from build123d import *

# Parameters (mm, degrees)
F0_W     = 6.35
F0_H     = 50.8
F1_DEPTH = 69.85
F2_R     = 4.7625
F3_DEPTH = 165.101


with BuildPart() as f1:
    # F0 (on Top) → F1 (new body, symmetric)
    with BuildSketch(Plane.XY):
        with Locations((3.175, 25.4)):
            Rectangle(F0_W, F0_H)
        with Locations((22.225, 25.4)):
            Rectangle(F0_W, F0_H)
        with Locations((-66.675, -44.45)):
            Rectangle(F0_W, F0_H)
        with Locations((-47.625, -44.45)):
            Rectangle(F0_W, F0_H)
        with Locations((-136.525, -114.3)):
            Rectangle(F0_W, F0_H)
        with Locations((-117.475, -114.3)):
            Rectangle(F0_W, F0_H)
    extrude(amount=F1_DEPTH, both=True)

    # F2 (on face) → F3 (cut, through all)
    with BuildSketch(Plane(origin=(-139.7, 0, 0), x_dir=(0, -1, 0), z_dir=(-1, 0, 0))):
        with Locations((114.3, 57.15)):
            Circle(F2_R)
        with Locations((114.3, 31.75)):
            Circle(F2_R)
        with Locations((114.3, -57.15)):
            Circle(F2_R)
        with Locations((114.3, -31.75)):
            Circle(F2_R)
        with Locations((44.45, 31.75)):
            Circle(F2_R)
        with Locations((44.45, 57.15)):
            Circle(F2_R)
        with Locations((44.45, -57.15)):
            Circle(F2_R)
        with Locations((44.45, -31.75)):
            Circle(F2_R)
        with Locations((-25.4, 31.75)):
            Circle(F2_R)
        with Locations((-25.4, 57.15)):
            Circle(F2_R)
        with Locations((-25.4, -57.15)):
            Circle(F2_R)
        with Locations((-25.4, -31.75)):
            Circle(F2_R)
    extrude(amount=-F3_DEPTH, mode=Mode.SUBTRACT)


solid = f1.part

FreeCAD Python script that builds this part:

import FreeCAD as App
import Part
import Sketcher

V = App.Vector
Q = App.Units.Quantity

doc = App.newDocument("Part")
params = doc.addObject("Spreadsheet::Sheet", "Params")
for row, (alias, value) in enumerate([
    ("sketch1_height", "2 in"),
    ("sketch1_width", "0.25 in"),
    ("pad1_length", "5.5 in"),
    ("sketch2_diameter", "0.375 in"),
], start=1):
    params.set(f"A{row}", alias)
    params.set(f"B{row}", "=" + value)
    params.setAlias(f"B{row}", alias)

body = doc.addObject("PartDesign::Body", "Body")
body.AllowCompound = True

# Sketch on XY plane
sketch1 = body.newObject("Sketcher::SketchObject", "Sketch")
sketch1.AttachmentSupport = (doc.getObject("XY_Plane"), [""])
sketch1.MapMode = "FlatFace"
sketch1.addGeometry([
    Part.LineSegment(V(0, 51, 0), V(0, 0, 0)),  # 0
    Part.LineSegment(V(0, 0, 0), V(6, 0, 0)),  # 1
    Part.LineSegment(V(6, 0, 0), V(6, 51, 0)),  # 2
    Part.LineSegment(V(6, 51, 0), V(0, 51, 0)),  # 3
    Part.LineSegment(V(19, 51, 0), V(19, 0, 0)),  # 4
    Part.LineSegment(V(19, 0, 0), V(25, 0, 0)),  # 5
    Part.LineSegment(V(25, 0, 0), V(25, 51, 0)),  # 6
    Part.LineSegment(V(25, 51, 0), V(19, 51, 0)),  # 7
    Part.LineSegment(V(-70, -19, 0), V(-70, -70, 0)),  # 8
    Part.LineSegment(V(-70, -70, 0), V(-64, -70, 0)),  # 9
    Part.LineSegment(V(-64, -70, 0), V(-64, -19, 0)),  # 10
    Part.LineSegment(V(-64, -19, 0), V(-70, -19, 0)),  # 11
    Part.LineSegment(V(-51, -19, 0), V(-51, -70, 0)),  # 12
    Part.LineSegment(V(-51, -70, 0), V(-44, -70, 0)),  # 13
    Part.LineSegment(V(-44, -70, 0), V(-44, -19, 0)),  # 14
    Part.LineSegment(V(-44, -19, 0), V(-51, -19, 0)),  # 15
    Part.LineSegment(V(-140, -89, 0), V(-140, -140, 0)),  # 16
    Part.LineSegment(V(-140, -140, 0), V(-133, -140, 0)),  # 17
    Part.LineSegment(V(-133, -140, 0), V(-133, -89, 0)),  # 18
    Part.LineSegment(V(-133, -89, 0), V(-140, -89, 0)),  # 19
    Part.LineSegment(V(-121, -89, 0), V(-121, -140, 0)),  # 20
    Part.LineSegment(V(-121, -140, 0), V(-114, -140, 0)),  # 21
    Part.LineSegment(V(-114, -140, 0), V(-114, -89, 0)),  # 22
    Part.LineSegment(V(-114, -89, 0), V(-121, -89, 0)),  # 23
], False)
sketch1.addConstraint([
    Sketcher.Constraint("Coincident", 0, 2, 1, 1),
    Sketcher.Constraint("Coincident", 1, 2, 2, 1),
    Sketcher.Constraint("Coincident", 2, 2, 3, 1),
    Sketcher.Constraint("Coincident", 3, 2, 0, 1),
    Sketcher.Constraint("Coincident", 4, 2, 5, 1),
    Sketcher.Constraint("Coincident", 5, 2, 6, 1),
    Sketcher.Constraint("Coincident", 6, 2, 7, 1),
    Sketcher.Constraint("Coincident", 7, 2, 4, 1),
    Sketcher.Constraint("Coincident", 8, 2, 9, 1),
    Sketcher.Constraint("Coincident", 9, 2, 10, 1),
    Sketcher.Constraint("Coincident", 10, 2, 11, 1),
    Sketcher.Constraint("Coincident", 11, 2, 8, 1),
    Sketcher.Constraint("Coincident", 12, 2, 13, 1),
    Sketcher.Constraint("Coincident", 13, 2, 14, 1),
    Sketcher.Constraint("Coincident", 14, 2, 15, 1),
    Sketcher.Constraint("Coincident", 15, 2, 12, 1),
    Sketcher.Constraint("Coincident", 16, 2, 17, 1),
    Sketcher.Constraint("Coincident", 17, 2, 18, 1),
    Sketcher.Constraint("Coincident", 18, 2, 19, 1),
    Sketcher.Constraint("Coincident", 19, 2, 16, 1),
    Sketcher.Constraint("Coincident", 20, 2, 21, 1),
    Sketcher.Constraint("Coincident", 21, 2, 22, 1),
    Sketcher.Constraint("Coincident", 22, 2, 23, 1),
    Sketcher.Constraint("Coincident", 23, 2, 20, 1),
    Sketcher.Constraint("Vertical", 0),
    Sketcher.Constraint("Horizontal", 1),
    Sketcher.Constraint("Vertical", 2),
    Sketcher.Constraint("Horizontal", 3),
    Sketcher.Constraint("Vertical", 4),
    Sketcher.Constraint("Horizontal", 5),
    Sketcher.Constraint("Vertical", 6),
    Sketcher.Constraint("Horizontal", 7),
    Sketcher.Constraint("Vertical", 8),
    Sketcher.Constraint("Horizontal", 9),
    Sketcher.Constraint("Vertical", 10),
    Sketcher.Constraint("Horizontal", 11),
    Sketcher.Constraint("Vertical", 12),
    Sketcher.Constraint("Horizontal", 13),
    Sketcher.Constraint("Vertical", 14),
    Sketcher.Constraint("Horizontal", 15),
    Sketcher.Constraint("Vertical", 16),
    Sketcher.Constraint("Horizontal", 17),
    Sketcher.Constraint("Vertical", 18),
    Sketcher.Constraint("Horizontal", 19),
    Sketcher.Constraint("Vertical", 20),
    Sketcher.Constraint("Horizontal", 21),
    Sketcher.Constraint("Vertical", 22),
    Sketcher.Constraint("Horizontal", 23),
    Sketcher.Constraint("Coincident", 0, 2, -1, 1),
    Sketcher.Constraint("PointOnObject", 4, 2, -1),
    Sketcher.Constraint("Horizontal", 3, 2, 6, 2),
    Sketcher.Constraint("Horizontal", 9, 2, 12, 2),
    Sketcher.Constraint("Horizontal", 11, 2, 14, 2),
    Sketcher.Constraint("Horizontal", 17, 2, 20, 2),
    Sketcher.Constraint("Horizontal", 19, 2, 22, 2),
    Sketcher.Constraint("Equal", 3, 5),
    Sketcher.Constraint("Equal", 7, 9),
    Sketcher.Constraint("Equal", 11, 13),
    Sketcher.Constraint("Equal", 15, 17),
    Sketcher.Constraint("Equal", 19, 21),
    Sketcher.Constraint("Equal", 6, 8),
    Sketcher.Constraint("Equal", 14, 16),
    Sketcher.Constraint("DistanceY", 0, 2, 0, 1, Q("2 in")),
    Sketcher.Constraint("DistanceX", -1, 1, 5, 2, Q("1 in")),
    Sketcher.Constraint("DistanceX", 12, 2, -1, 1, Q("2 in")),
    Sketcher.Constraint("DistanceX", 8, 2, 1, 2, Q("3 in")),
    Sketcher.Constraint("DistanceX", 16, 2, 9, 2, Q("3 in")),
    Sketcher.Constraint("DistanceX", 20, 2, 8, 2, Q("2 in")),
    Sketcher.Constraint("DistanceX", 1, 1, 1, 2, Q("0.25 in")),
    Sketcher.Constraint("DistanceY", 16, 2, -1, 1, Q("5.5 in")),
    Sketcher.Constraint("DistanceY", 8, 2, -1, 1, Q("2.75 in")),
])
sketch1.setExpression("Constraints[62]", "Params.sketch1_height")
sketch1.setExpression("Constraints[68]", "Params.sketch1_width")
pad1 = body.newObject("PartDesign::Pad", "Pad")
pad1.Profile = sketch1
pad1.setExpression("Length", "Params.pad1_length")
pad1.Midplane = True

# Sketch on YZ plane
sketch2 = body.newObject("Sketcher::SketchObject", "Sketch001")
sketch2.AttachmentSupport = (doc.getObject("YZ_Plane"), [""])
sketch2.MapMode = "FlatFace"
sketch2.AttachmentOffset = App.Placement(V(0, 0, -5.5 * 25.4), App.Rotation())
sketch2.addGeometry([
    Part.Circle(V(-114.3, 57.1, 0), V(0, 0, 1), 4.8),  # 0
    Part.Circle(V(-114.3, 31.8, 0), V(0, 0, 1), 4.8),  # 1
    Part.Circle(V(-114.3, -57.1, 0), V(0, 0, 1), 4.8),  # 2
    Part.Circle(V(-114.3, -31.8, 0), V(0, 0, 1), 4.8),  # 3
    Part.Circle(V(-44.5, 31.8, 0), V(0, 0, 1), 4.8),  # 4
    Part.Circle(V(-44.5, 57.1, 0), V(0, 0, 1), 4.8),  # 5
    Part.Circle(V(-44.5, -57.1, 0), V(0, 0, 1), 4.8),  # 6
    Part.Circle(V(-44.5, -31.8, 0), V(0, 0, 1), 4.8),  # 7
    Part.Circle(V(25.4, 31.8, 0), V(0, 0, 1), 4.8),  # 8
    Part.Circle(V(25.4, 57.1, 0), V(0, 0, 1), 4.8),  # 9
    Part.Circle(V(25.4, -57.1, 0), V(0, 0, 1), 4.8),  # 10
    Part.Circle(V(25.4, -31.8, 0), V(0, 0, 1), 4.8),  # 11
], False)
sketch2.addConstraint([
    Sketcher.Constraint("Equal", 0, 1),
    Sketcher.Constraint("Equal", 1, 2),
    Sketcher.Constraint("Equal", 2, 3),
    Sketcher.Constraint("Equal", 3, 4),
    Sketcher.Constraint("Equal", 4, 5),
    Sketcher.Constraint("Equal", 5, 6),
    Sketcher.Constraint("Equal", 6, 7),
    Sketcher.Constraint("Equal", 7, 8),
    Sketcher.Constraint("Equal", 8, 9),
    Sketcher.Constraint("Equal", 9, 10),
    Sketcher.Constraint("Equal", 10, 11),
    Sketcher.Constraint("Symmetric", 0, 3, 2, 3, -1),
    Sketcher.Constraint("Symmetric", 1, 3, 3, 3, -1),
    Sketcher.Constraint("Symmetric", 5, 3, 6, 3, -1),
    Sketcher.Constraint("Symmetric", 4, 3, 7, 3, -1),
    Sketcher.Constraint("Symmetric", 9, 3, 10, 3, -1),
    Sketcher.Constraint("Symmetric", 8, 3, 11, 3, -1),
    Sketcher.Constraint("Horizontal", 1, 3, 4, 3),
    Sketcher.Constraint("Horizontal", 0, 3, 5, 3),
    Sketcher.Constraint("Horizontal", 4, 3, 8, 3),
    Sketcher.Constraint("Horizontal", 5, 3, 9, 3),
    Sketcher.Constraint("Vertical", 0, 3, 1, 3),
    Sketcher.Constraint("Vertical", 4, 3, 5, 3),
    Sketcher.Constraint("Vertical", 8, 3, 9, 3),
    Sketcher.Constraint("Diameter", 0, Q("0.375 in")),
    Sketcher.Constraint("DistanceX", -1, 1, 8, 3, Q("1 in")),
    Sketcher.Constraint("DistanceY", 1, 3, 0, 3, Q("1 in")),
    Sketcher.Constraint("DistanceX", 0, 3, -1, 1, Q("4.5 in")),
    Sketcher.Constraint("DistanceY", 2, 3, 1, 3, Q("3.5 in")),
    Sketcher.Constraint("DistanceX", 4, 3, -1, 1, Q("1.75 in")),
])
sketch2.setExpression("Constraints[24]", "Params.sketch2_diameter")
pocket1 = body.newObject("PartDesign::Pocket", "Pocket")
pocket1.Profile = sketch2
pocket1.Type = "ThroughAll"
pocket1.Reversed = True

doc.recompute()
